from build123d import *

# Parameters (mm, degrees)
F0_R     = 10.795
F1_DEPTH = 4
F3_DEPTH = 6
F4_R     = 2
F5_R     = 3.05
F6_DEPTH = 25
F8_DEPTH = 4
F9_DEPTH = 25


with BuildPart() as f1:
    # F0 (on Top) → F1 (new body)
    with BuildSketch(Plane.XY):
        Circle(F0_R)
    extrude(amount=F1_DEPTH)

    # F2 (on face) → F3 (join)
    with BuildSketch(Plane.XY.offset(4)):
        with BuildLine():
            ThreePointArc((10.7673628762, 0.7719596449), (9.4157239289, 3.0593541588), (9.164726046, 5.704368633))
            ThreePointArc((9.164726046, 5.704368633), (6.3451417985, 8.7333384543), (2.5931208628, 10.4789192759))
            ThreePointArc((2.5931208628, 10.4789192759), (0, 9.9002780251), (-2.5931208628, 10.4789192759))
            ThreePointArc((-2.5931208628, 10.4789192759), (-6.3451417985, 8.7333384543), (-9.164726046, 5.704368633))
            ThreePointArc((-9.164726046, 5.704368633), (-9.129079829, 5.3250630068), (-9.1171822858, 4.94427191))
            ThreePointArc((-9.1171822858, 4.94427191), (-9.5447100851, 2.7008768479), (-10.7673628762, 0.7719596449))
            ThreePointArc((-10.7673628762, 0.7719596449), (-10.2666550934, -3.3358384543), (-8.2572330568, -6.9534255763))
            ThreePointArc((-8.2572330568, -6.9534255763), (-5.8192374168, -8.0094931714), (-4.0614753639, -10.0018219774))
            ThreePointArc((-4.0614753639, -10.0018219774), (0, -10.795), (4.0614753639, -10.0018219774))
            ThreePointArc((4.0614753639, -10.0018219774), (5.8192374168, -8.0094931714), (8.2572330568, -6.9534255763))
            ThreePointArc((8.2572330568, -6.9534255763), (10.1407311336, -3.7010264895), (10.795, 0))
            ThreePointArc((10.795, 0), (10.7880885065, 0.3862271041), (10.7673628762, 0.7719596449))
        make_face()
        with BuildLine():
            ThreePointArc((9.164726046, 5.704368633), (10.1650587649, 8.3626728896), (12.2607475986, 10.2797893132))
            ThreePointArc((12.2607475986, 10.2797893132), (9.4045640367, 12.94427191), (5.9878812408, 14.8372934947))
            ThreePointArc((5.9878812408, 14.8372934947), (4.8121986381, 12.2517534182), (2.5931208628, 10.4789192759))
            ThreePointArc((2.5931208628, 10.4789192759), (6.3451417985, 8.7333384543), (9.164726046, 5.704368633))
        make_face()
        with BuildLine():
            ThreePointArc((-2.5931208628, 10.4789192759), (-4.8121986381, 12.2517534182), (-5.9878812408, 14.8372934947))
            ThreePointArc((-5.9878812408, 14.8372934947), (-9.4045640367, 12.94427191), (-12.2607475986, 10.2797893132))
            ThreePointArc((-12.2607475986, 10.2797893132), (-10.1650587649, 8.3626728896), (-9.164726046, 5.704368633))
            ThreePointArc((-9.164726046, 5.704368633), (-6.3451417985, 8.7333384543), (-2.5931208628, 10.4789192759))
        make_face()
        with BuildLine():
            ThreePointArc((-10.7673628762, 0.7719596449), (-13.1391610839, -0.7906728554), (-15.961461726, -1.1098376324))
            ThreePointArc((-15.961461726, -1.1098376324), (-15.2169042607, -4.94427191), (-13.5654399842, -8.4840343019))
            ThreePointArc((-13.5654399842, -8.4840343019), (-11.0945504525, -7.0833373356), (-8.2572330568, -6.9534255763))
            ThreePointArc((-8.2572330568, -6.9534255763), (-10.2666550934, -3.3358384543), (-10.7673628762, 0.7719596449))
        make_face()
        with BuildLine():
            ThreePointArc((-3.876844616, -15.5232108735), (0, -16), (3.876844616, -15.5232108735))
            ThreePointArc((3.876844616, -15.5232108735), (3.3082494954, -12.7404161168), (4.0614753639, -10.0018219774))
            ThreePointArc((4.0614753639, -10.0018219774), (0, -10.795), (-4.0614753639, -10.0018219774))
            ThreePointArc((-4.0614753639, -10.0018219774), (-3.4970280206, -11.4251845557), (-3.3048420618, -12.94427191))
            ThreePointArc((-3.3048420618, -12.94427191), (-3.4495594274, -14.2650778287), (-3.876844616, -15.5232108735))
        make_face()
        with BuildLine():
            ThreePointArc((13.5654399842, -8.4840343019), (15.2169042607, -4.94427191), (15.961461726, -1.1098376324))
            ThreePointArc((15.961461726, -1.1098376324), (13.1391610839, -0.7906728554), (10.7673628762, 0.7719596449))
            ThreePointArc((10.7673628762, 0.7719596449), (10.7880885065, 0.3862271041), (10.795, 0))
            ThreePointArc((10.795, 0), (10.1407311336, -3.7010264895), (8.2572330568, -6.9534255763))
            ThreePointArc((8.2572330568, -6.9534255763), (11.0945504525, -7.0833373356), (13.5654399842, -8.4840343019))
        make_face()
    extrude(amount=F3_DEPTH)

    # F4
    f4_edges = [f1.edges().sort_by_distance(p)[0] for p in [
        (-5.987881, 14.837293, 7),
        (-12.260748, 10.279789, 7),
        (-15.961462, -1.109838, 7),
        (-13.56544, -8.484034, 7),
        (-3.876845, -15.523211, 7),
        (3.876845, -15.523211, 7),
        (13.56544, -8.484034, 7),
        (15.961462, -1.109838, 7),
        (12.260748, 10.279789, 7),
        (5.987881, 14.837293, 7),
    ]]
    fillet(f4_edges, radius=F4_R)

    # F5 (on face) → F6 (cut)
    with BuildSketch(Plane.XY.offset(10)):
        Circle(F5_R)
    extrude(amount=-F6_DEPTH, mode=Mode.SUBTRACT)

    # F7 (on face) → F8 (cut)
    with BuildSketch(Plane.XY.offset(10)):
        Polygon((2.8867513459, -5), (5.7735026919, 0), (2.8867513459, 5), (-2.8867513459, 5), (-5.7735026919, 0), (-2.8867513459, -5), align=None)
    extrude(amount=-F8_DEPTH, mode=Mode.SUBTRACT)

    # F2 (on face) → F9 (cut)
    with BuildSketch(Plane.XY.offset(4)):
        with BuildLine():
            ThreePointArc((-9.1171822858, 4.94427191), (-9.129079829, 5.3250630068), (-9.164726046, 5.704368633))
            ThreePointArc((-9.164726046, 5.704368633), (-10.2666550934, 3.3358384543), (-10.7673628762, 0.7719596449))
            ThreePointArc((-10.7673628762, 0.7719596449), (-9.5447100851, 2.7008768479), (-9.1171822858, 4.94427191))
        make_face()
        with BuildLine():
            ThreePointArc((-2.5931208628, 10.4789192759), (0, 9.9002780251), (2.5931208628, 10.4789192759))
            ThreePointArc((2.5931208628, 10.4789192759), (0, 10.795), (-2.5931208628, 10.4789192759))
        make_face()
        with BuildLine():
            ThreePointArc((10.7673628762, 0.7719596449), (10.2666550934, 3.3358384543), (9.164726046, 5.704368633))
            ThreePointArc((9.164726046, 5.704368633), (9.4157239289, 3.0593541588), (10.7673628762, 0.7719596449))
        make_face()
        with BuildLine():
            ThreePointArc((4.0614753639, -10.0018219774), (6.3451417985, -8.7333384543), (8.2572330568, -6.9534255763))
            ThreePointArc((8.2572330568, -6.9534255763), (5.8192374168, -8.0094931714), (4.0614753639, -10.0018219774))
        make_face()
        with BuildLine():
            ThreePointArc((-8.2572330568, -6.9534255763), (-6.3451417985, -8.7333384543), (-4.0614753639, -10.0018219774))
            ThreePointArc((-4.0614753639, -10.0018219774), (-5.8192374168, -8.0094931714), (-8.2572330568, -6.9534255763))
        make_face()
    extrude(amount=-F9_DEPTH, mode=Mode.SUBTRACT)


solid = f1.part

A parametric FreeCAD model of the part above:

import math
import FreeCAD as App
import Part
import Sketcher
from FreeCAD import Vector
Q = App.Units.Quantity


def edges_at(feature, points):
    """Names of the edges that pass closest to the given points."""
    edges = feature.Shape.Edges
    near = lambda p: min(range(len(edges)), key=lambda i: edges[i].distToShape(Part.Vertex(*p))[0])
    return sorted({f"Edge{near(p) + 1}" for p in points})

doc = App.newDocument("Part")
body = doc.addObject("PartDesign::Body", "Body")

# Sketch on XY plane
sketch1 = doc.addObject("Sketcher::SketchObject", "Sketch")
body.addObject(sketch1)
sketch1.AttachmentSupport = (doc.XY_Plane, [""])
sketch1.MapMode = "FlatFace"
sketch1.addGeometry(Part.Circle(Vector(0, 0, 0), Vector(0, 0, 1), 11), False)
sketch1.addConstraint([
    Sketcher.Constraint("Coincident", 0, 3, -1, 1),
    Sketcher.Constraint("Diameter", 0, Q("21.59 mm")),
])
pad1 = doc.addObject("PartDesign::Pad", "Pad")
body.addObject(pad1)
pad1.Profile = sketch1
pad1.Length = 4

# Sketch on XY plane
sketch2 = doc.addObject("Sketcher::SketchObject", "Sketch001")
body.addObject(sketch2)
sketch2.AttachmentSupport = (doc.XY_Plane, [""])
sketch2.MapMode = "FlatFace"
sketch2.AttachmentOffset = App.Placement(Vector(0, 0, 4), App.Rotation())
sketch2.addGeometry([
    Part.ArcOfCircle(Part.Circle(Vector(15.2, 4.9, 0), Vector(0, 0, 1), 6.1), math.radians(173), math.radians(223)),  # 0
    Part.ArcOfCircle(Part.Circle(Vector(15.2, 4.9, 0), Vector(0, 0, 1), 6.1), math.radians(119), math.radians(173)),  # 1
    Part.ArcOfCircle(Part.Circle(Vector(0, 0, 0), Vector(0, 0, 1), 16), math.radians(40), math.radians(68)),  # 2
    Part.ArcOfCircle(Part.Circle(Vector(0, 16, 0), Vector(0, 0, 1), 6.1), math.radians(-65), math.radians(-11)),  # 3
    Part.ArcOfCircle(Part.Circle(Vector(0, 16, 0), Vector(0, 0, 1), 6.1), math.radians(-115), math.radians(-65)),  # 4
    Part.ArcOfCircle(Part.Circle(Vector(0, 16, 0), Vector(0, 0, 1), 6.1), math.radians(-169), math.radians(-115)),  # 5
    Part.ArcOfCircle(Part.Circle(Vector(0, 0, 0), Vector(0, 0, 1), 16), math.radians(112), math.radians(140)),  # 6
    Part.ArcOfCircle(Part.Circle(Vector(-15.2, 4.9, 0), Vector(0, 0, 1), 6.1), math.radians(7), math.radians(61)),  # 7
    Part.ArcOfCircle(Part.Circle(Vector(-15.2, 4.9, 0), Vector(0, 0, 1), 6.1), math.radians(0), math.radians(7.16)),  # 8
    Part.ArcOfCircle(Part.Circle(Vector(-15.2, 4.9, 0), Vector(0, 0, 1), 6.1), math.radians(-43), math.radians(0)),  # 9
    Part.ArcOfCircle(Part.Circle(Vector(-15.2, 4.9, 0), Vector(0, 0, 1), 6.1), math.radians(-97), math.radians(-43)),  # 10
    Part.ArcOfCircle(Part.Circle(Vector(0, 0, 0), Vector(0, 0, 1), 16), math.radians(-176), math.radians(-148)),  # 11
    Part.ArcOfCircle(Part.Circle(Vector(-9.4, -12.9, 0), Vector(0, 0, 1), 6.1), math.radians(79), math.radians(133)),  # 12
    Part.ArcOfCircle(Part.Circle(Vector(-9.4, -12.9, 0), Vector(0, 0, 1), 6.1), math.radians(29), math.radians(79)),  # 13
    Part.ArcOfCircle(Part.Circle(Vector(-9.4, -12.9, 0), Vector(0, 0, 1), 6.1), math.radians(0), math.radians(29)),  # 14
    Part.ArcOfCircle(Part.Circle(Vector(-9.4, -12.9, 0), Vector(0, 0, 1), 6.1), math.radians(-25), math.radians(0)),  # 15
    Part.ArcOfCircle(Part.Circle(Vector(0, 0, 0), Vector(0, 0, 1), 16), math.radians(-104), math.radians(-76)),  # 16
    Part.ArcOfCircle(Part.Circle(Vector(9.4, -12.9, 0), Vector(0, 0, 1), 6.1), math.radians(151), math.radians(205)),  # 17
    Part.ArcOfCircle(Part.Circle(Vector(9.4, -12.9, 0), Vector(0, 0, 1), 6.1), math.radians(101), math.radians(151)),  # 18
    Part.ArcOfCircle(Part.Circle(Vector(9.4, -12.9, 0), Vector(0, 0, 1), 6.1), math.radians(47), math.radians(101)),  # 19
    Part.ArcOfCircle(Part.Circle(Vector(0, 0, 0), Vector(0, 0, 1), 16), math.radians(-32), math.radians(-4)),  # 20
    Part.ArcOfCircle(Part.Circle(Vector(15.2, 4.9, 0), Vector(0, 0, 1), 6.1), math.radians(-137), math.radians(-83)),  # 21
], False)
sketch2.addConstraint([
    Sketcher.Constraint("Tangent", 0, 1, 1, 2),
    Sketcher.Constraint("Coincident", 1, 1, 2, 1),
    Sketcher.Constraint("Coincident", 2, 2, 3, 2),
    Sketcher.Constraint("Tangent", 3, 1, 4, 2),
    Sketcher.Constraint("Tangent", 4, 1, 5, 2),
    Sketcher.Constraint("Coincident", 5, 1, 6, 1),
    Sketcher.Constraint("Coincident", 6, 2, 7, 2),
    Sketcher.Constraint("Tangent", 7, 1, 8, 2),
    Sketcher.Constraint("Tangent", 8, 1, 9, 2),
    Sketcher.Constraint("Tangent", 9, 1, 10, 2),
    Sketcher.Constraint("Coincident", 10, 1, 11, 1),
    Sketcher.Constraint("Coincident", 11, 2, 12, 2),
    Sketcher.Constraint("Tangent", 12, 1, 13, 2),
    Sketcher.Constraint("Tangent", 13, 1, 14, 2),
    Sketcher.Constraint("Tangent", 14, 1, 15, 2),
    Sketcher.Constraint("Coincident", 15, 1, 16, 1),
    Sketcher.Constraint("Coincident", 16, 2, 17, 2),
    Sketcher.Constraint("Tangent", 17, 1, 18, 2),
    Sketcher.Constraint("Tangent", 18, 1, 19, 2),
    Sketcher.Constraint("Coincident", 19, 1, 20, 1),
    Sketcher.Constraint("Coincident", 20, 2, 21, 2),
    Sketcher.Constraint("Tangent", 21, 1, 0, 2),
    Sketcher.Constraint("Coincident", 2, 3, -1, 1),
    Sketcher.Constraint("Coincident", 6, 3, -1, 1),
    Sketcher.Constraint("Coincident", 11, 3, -1, 1),
    Sketcher.Constraint("Coincident", 16, 3, -1, 1),
    Sketcher.Constraint("Coincident", 20, 3, -1, 1),
    Sketcher.Constraint("Coincident", 5, 3, 3, 3),
    Sketcher.Constraint("Coincident", 9, 3, 7, 3),
    Sketcher.Constraint("Coincident", 14, 3, 12, 3),
    Sketcher.Constraint("Coincident", 19, 3, 17, 3),
    Sketcher.Constraint("Equal", 0, 1),
    Sketcher.Constraint("Equal", 1, 3),
    Sketcher.Constraint("Equal", 2, 6),
    Sketcher.Constraint("Equal", 5, 7),
    Sketcher.Constraint("Equal", 9, 10),
    Sketcher.Constraint("Equal", 6, 11),
    Sketcher.Constraint("Equal", 10, 12),
    Sketcher.Constraint("Equal", 14, 15),
    Sketcher.Constraint("Equal", 11, 16),
    Sketcher.Constraint("Equal", 15, 17),
    Sketcher.Constraint("Equal", 16, 20),
    Sketcher.Constraint("Equal", 19, 21),
    Sketcher.Constraint("Symmetric", 0, 3, 7, 3, -2),
    Sketcher.Constraint("Symmetric", 12, 3, 17, 3, -2),
    Sketcher.Constraint("Symmetric", 3, 1, 4, 1, -2),
    Sketcher.Constraint("Horizontal", 0, 1, 7, 1),
    Sketcher.Constraint("Horizontal", 21, 3, 8, 1),
    Sketcher.Constraint("Horizontal", 19, 3, 14, 1),
    Sketcher.Constraint("Horizontal", 13, 1, 17, 1),
    Sketcher.Constraint("Horizontal", 12, 1, 18, 1),
    Sketcher.Constraint("Horizontal", 9, 1, 21, 1),
    Sketcher.Constraint("Radius", 2, Q("16 mm")),
    Sketcher.Constraint("DistanceY", -1, 1, 3, 3, Q("16 mm")),
    Sketcher.Constraint("Radius", 0, Q("6.099722 mm")),
    Sketcher.Constraint("DistanceX", 10, 1, 9, 1, Q("5.194099 mm")),
    Sketcher.Constraint("DistanceY", -1, 1, 0, 3, Q("4.944272 mm")),
    Sketcher.Constraint("DistanceY", 12, 3, -1, 1, Q("12.944272 mm")),
    Sketcher.Constraint("DistanceY", -1, 1, 0, 1, Q("5.704369 mm")),
    Sketcher.Constraint("DistanceY", -1, 1, 1, 1, Q("10.279789 mm")),
    Sketcher.Constraint("DistanceX", -1, 1, 3, 1, Q("2.593121 mm")),
    Sketcher.Constraint("DistanceX", 11, 2, -1, 1, Q("13.56544 mm")),
    Sketcher.Constraint("DistanceY", 13, 1, -1, 1, Q("10.001822 mm")),
    Sketcher.Constraint("DistanceY", 11, 2, 12, 1, Q("1.530609 mm")),
])
pad2 = doc.addObject("PartDesign::Pad", "Pad001")
body.addObject(pad2)
pad2.Profile = sketch2
pad2.Length = 6
doc.recompute()

fillet = doc.addObject("PartDesign::Fillet", "Fillet")
body.addObject(fillet)
fillet.Base = (pad2, edges_at(pad2, [
    (-5.988, 14.837, 7),
    (-12.261, 10.28, 7),
    (-15.961, -1.11, 7),
    (-13.565, -8.484, 7),
    (-3.877, -15.523, 7),
    (3.877, -15.523, 7),
    (13.565, -8.484, 7),
    (15.961, -1.11, 7),
    (12.261, 10.28, 7),
    (5.988, 14.837, 7),
]))
fillet.Radius = 2

# Sketch on XY plane
sketch3 = doc.addObject("Sketcher::SketchObject", "Sketch002")
body.addObject(sketch3)
sketch3.AttachmentSupport = (doc.XY_Plane, [""])
sketch3.MapMode = "FlatFace"
sketch3.AttachmentOffset = App.Placement(Vector(0, 0, 10), App.Rotation())
sketch3.addGeometry(Part.Circle(Vector(0, 0, 0), Vector(0, 0, 1), 3), False)
sketch3.addConstraint([
    Sketcher.Constraint("Coincident", 0, 3, -1, 1),
    Sketcher.Constraint("Diameter", 0, Q("6.1 mm")),
])
pocket1 = doc.addObject("PartDesign::Pocket", "Pocket")
body.addObject(pocket1)
pocket1.Profile = sketch3
pocket1.Length = 25

# Sketch on XY plane
sketch4 = doc.addObject("Sketcher::SketchObject", "Sketch003")
body.addObject(sketch4)
sketch4.AttachmentSupport = (doc.XY_Plane, [""])
sketch4.MapMode = "FlatFace"
sketch4.AttachmentOffset = App.Placement(Vector(0, 0, 10), App.Rotation())
sketch4.addGeometry([
    Part.LineSegment(Vector(3, -5, 0), Vector(6, 0, 0)),  # 0
    Part.LineSegment(Vector(6, 0, 0), Vector(3, 5, 0)),  # 1
    Part.LineSegment(Vector(3, 5, 0), Vector(-3, 5, 0)),  # 2
    Part.LineSegment(Vector(-3, 5, 0), Vector(-6, 0, 0)),  # 3
    Part.LineSegment(Vector(-6, 0, 0), Vector(-3, -5, 0)),  # 4
    Part.LineSegment(Vector(-3, -5, 0), Vector(3, -5, 0)),  # 5
], False)
sketch4.addConstraint([
    Sketcher.Constraint("Coincident", 0, 2, 1, 1),
    Sketcher.Constraint("Coincident", 1, 2, 2, 1),
    Sketcher.Constraint("Coincident", 2, 2, 3, 1),
    Sketcher.Constraint("Coincident", 3, 2, 4, 1),
    Sketcher.Constraint("Coincident", 4, 2, 5, 1),
    Sketcher.Constraint("Coincident", 5, 2, 0, 1),
    Sketcher.Constraint("Horizontal", 2),
    Sketcher.Constraint("Horizontal", 5),
    Sketcher.Constraint("Symmetric", 0, 2, 3, 2, -1, 1),
    Sketcher.Constraint("Symmetric", 1, 2, 4, 2, -1, 1),
    Sketcher.Constraint("PointOnObject", 0, 2, -1),
    Sketcher.Constraint("Parallel", 0, 3),
    Sketcher.Constraint("Vertical", 2, 2, 4, 2),
    Sketcher.Constraint("Angle", 0, Q("60 deg")),
    Sketcher.Constraint("DistanceY", -1, 1, 1, 2, Q("5 mm")),
    Sketcher.Constraint("DistanceX", 2, 2, 2, 1, Q("5.773503 mm")),
])
pocket2 = doc.addObject("PartDesign::Pocket", "Pocket001")
body.addObject(pocket2)
pocket2.Profile = sketch4
pocket2.Length = 4

# Sketch on XY plane
sketch5 = doc.addObject("Sketcher::SketchObject", "Sketch004")
body.addObject(sketch5)
sketch5.AttachmentSupport = (doc.XY_Plane, [""])
sketch5.MapMode = "FlatFace"
sketch5.AttachmentOffset = App.Placement(Vector(0, 0, 4), App.Rotation())
sketch5.addGeometry([
    Part.ArcOfCircle(Part.Circle(Vector(-15.2, 4.9, 0), Vector(0, 0, 1), 6.1), math.radians(0), math.radians(7.16)),  # 0
    Part.ArcOfCircle(Part.Circle(Vector(0, 0, 0), Vector(0, 0, 1), 10.8), math.radians(148), math.radians(176)),  # 1
    Part.ArcOfCircle(Part.Circle(Vector(-15.2, 4.9, 0), Vector(0, 0, 1), 6.1), math.radians(-43), math.radians(0)),  # 2
    Part.ArcOfCircle(Part.Circle(Vector(0, 16, 0), Vector(0, 0, 1), 6.1), math.radians(-115), math.radians(-65)),  # 3
    Part.ArcOfCircle(Part.Circle(Vector(0, 0, 0), Vector(0, 0, 1), 10.8), math.radians(76), math.radians(104)),  # 4
    Part.ArcOfCircle(Part.Circle(Vector(0, 0, 0), Vector(0, 0, 1), 10.8), math.radians(4), math.radians(32)),  # 5
    Part.ArcOfCircle(Part.Circle(Vector(15.2, 4.9, 0), Vector(0, 0, 1), 6.1), math.radians(173), math.radians(223)),  # 6
    Part.ArcOfCircle(Part.Circle(Vector(0, 0, 0), Vector(0, 0, 1), 10.8), math.radians(-68), math.radians(-40)),  # 7
    Part.ArcOfCircle(Part.Circle(Vector(9.4, -12.9, 0), Vector(0, 0, 1), 6.1), math.radians(101), math.radians(151)),  # 8
    Part.ArcOfCircle(Part.Circle(Vector(0, 0, 0), Vector(0, 0, 1), 10.8), math.radians(-140), math.radians(-112)),  # 9
    Part.ArcOfCircle(Part.Circle(Vector(-9.4, -12.9, 0), Vector(0, 0, 1), 6.1), math.radians(29), math.radians(79)),  # 10
], False)
sketch5.addConstraint([
    Sketcher.Constraint("Coincident", 0, 2, 1, 1),
    Sketcher.Constraint("Coincident", 1, 2, 2, 1),
    Sketcher.Constraint("Tangent", 2, 2, 0, 1),
    Sketcher.Constraint("Coincident", 3, 1, 4, 2),
    Sketcher.Constraint("Coincident", 4, 1, 3, 2),
    Sketcher.Constraint("Coincident", 5, 1, 6, 2),
    Sketcher.Constraint("Coincident", 6, 1, 5, 2),
    Sketcher.Constraint("Coincident", 7, 1, 8, 2),
    Sketcher.Constraint("Coincident", 8, 1, 7, 2),
    Sketcher.Constraint("Coincident", 9, 1, 10, 2),
    Sketcher.Constraint("Coincident", 10, 1, 9, 2),
    Sketcher.Constraint("Coincident", 1, 3, -1, 1),
    Sketcher.Constraint("Coincident", 4, 3, -1, 1),
    Sketcher.Constraint("Coincident", 5, 3, -1, 1),
    Sketcher.Constraint("Coincident", 7, 3, -1, 1),
    Sketcher.Constraint("Coincident", 9, 3, -1, 1),
    Sketcher.Constraint("Equal", 0, 2),
    Sketcher.Constraint("Equal", 2, 3),
    Sketcher.Constraint("Equal", 1, 4),
    Sketcher.Constraint("Equal", 4, 5),
    Sketcher.Constraint("Equal", 3, 6),
    Sketcher.Constraint("Equal", 5, 7),
    Sketcher.Constraint("Equal", 6, 8),
    Sketcher.Constraint("Equal", 7, 9),
    Sketcher.Constraint("Equal", 8, 10),
    Sketcher.Constraint("Symmetric", 0, 3, 6, 3, -2),
    Sketcher.Constraint("Symmetric", 8, 3, 10, 3, -2),
    Sketcher.Constraint("PointOnObject", 3, 3, -2),
    Sketcher.Constraint("Horizontal", 6, 3, 2, 2),
    Sketcher.Constraint("DistanceY", -1, 1, 3, 3, Q("16 mm")),
    Sketcher.Constraint("Radius", 1, Q("10.795 mm")),
    Sketcher.Constraint("Radius", 0, Q("6.099722 mm")),
    Sketcher.Constraint("DistanceY", -1, 1, 0, 3, Q("4.944272 mm")),
    Sketcher.Constraint("DistanceY", 8, 3, -1, 1, Q("12.944272 mm")),
    Sketcher.Constraint("DistanceY", -1, 1, 0, 2, Q("5.704369 mm")),
    Sketcher.Constraint("DistanceY", 7, 1, -1, 1, Q("10.001822 mm")),
])
pocket3 = doc.addObject("PartDesign::Pocket", "Pocket002")
body.addObject(pocket3)
pocket3.Profile = sketch5
pocket3.Length = 25

doc.recompute()
